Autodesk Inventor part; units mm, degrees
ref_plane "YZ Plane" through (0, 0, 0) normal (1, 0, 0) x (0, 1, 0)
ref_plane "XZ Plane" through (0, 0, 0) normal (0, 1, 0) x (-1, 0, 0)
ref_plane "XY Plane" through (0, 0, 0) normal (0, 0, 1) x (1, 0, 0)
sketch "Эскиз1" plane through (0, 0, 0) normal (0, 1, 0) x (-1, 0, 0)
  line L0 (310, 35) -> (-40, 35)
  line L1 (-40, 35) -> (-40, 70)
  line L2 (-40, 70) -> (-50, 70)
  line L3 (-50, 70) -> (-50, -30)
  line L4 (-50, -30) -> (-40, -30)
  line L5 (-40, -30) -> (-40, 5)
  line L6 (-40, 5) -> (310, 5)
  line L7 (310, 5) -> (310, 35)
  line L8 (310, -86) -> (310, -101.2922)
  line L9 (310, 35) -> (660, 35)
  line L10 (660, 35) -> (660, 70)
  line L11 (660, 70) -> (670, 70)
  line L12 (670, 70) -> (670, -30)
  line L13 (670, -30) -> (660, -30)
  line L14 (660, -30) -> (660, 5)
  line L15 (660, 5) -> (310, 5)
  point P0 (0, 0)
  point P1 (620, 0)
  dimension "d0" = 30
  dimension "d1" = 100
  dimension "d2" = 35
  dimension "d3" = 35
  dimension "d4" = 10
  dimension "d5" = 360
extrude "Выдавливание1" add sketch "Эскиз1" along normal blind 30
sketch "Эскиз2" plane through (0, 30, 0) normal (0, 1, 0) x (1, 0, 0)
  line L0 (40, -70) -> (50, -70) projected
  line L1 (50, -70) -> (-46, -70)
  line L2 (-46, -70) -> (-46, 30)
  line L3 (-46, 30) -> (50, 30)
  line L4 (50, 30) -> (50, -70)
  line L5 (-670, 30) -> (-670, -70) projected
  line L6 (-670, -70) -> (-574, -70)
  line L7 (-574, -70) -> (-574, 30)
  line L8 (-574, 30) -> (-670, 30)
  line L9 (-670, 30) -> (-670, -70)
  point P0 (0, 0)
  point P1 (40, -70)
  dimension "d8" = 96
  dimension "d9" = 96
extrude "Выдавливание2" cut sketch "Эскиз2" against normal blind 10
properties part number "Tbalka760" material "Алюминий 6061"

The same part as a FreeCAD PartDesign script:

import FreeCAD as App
import Part
import Sketcher

V = App.Vector
Q = App.Units.Quantity

doc = App.newDocument("Part")
body = doc.addObject("PartDesign::Body", "Body")

sketch1 = body.newObject("Sketcher::SketchObject", "Sketch")
sketch1.AttachmentSupport = (doc.getObject("XZ_Plane"), [""])
sketch1.MapMode = "FlatFace"
sketch1.addGeometry(Part.LineSegment(V(40, 5, 0), V(-660, 5, 0)), False)
sketch1.addGeometry(Part.LineSegment(V(-660, 5, 0), V(-660, -30, 0)), False)
sketch1.addGeometry(Part.LineSegment(V(-660, -30, 0), V(-670, -30, 0)), False)
sketch1.addGeometry(Part.LineSegment(V(-670, -30, 0), V(-670, 70, 0)), False)
sketch1.addGeometry(Part.LineSegment(V(-670, 70, 0), V(-660, 70, 0)), False)
sketch1.addGeometry(Part.LineSegment(V(-660, 70, 0), V(-660, 35, 0)), False)
sketch1.addGeometry(Part.LineSegment(V(-660, 35, 0), V(40, 35, 0)), False)
sketch1.addGeometry(Part.LineSegment(V(40, 35, 0), V(40, 70, 0)), False)
sketch1.addGeometry(Part.LineSegment(V(40, 70, 0), V(50, 70, 0)), False)
sketch1.addGeometry(Part.LineSegment(V(50, 70, 0), V(50, -30, 0)), False)
sketch1.addGeometry(Part.LineSegment(V(50, -30, 0), V(40, -30, 0)), False)
sketch1.addGeometry(Part.LineSegment(V(40, -30, 0), V(40, 5, 0)), False)
sketch1.addConstraint(Sketcher.Constraint("Coincident", 0, 2, 1, 1))
sketch1.addConstraint(Sketcher.Constraint("Coincident", 1, 2, 2, 1))
sketch1.addConstraint(Sketcher.Constraint("Coincident", 2, 2, 3, 1))
sketch1.addConstraint(Sketcher.Constraint("Coincident", 3, 2, 4, 1))
sketch1.addConstraint(Sketcher.Constraint("Coincident", 4, 2, 5, 1))
sketch1.addConstraint(Sketcher.Constraint("Coincident", 5, 2, 6, 1))
sketch1.addConstraint(Sketcher.Constraint("Coincident", 6, 2, 7, 1))
sketch1.addConstraint(Sketcher.Constraint("Coincident", 7, 2, 8, 1))
sketch1.addConstraint(Sketcher.Constraint("Coincident", 8, 2, 9, 1))
sketch1.addConstraint(Sketcher.Constraint("Coincident", 9, 2, 10, 1))
sketch1.addConstraint(Sketcher.Constraint("Coincident", 10, 2, 11, 1))
sketch1.addConstraint(Sketcher.Constraint("Coincident", 11, 2, 0, 1))
sketch1.addConstraint(Sketcher.Constraint("Horizontal", 0))
sketch1.addConstraint(Sketcher.Constraint("Vertical", 1))
sketch1.addConstraint(Sketcher.Constraint("Horizontal", 2))
sketch1.addConstraint(Sketcher.Constraint("Vertical", 3))
sketch1.addConstraint(Sketcher.Constraint("Horizontal", 4))
sketch1.addConstraint(Sketcher.Constraint("Vertical", 5))
sketch1.addConstraint(Sketcher.Constraint("Horizontal", 6))
sketch1.addConstraint(Sketcher.Constraint("Vertical", 7))
sketch1.addConstraint(Sketcher.Constraint("Horizontal", 8))
sketch1.addConstraint(Sketcher.Constraint("Vertical", 9))
sketch1.addConstraint(Sketcher.Constraint("Horizontal", 10))
sketch1.addConstraint(Sketcher.Constraint("Vertical", 11))
sketch1.addConstraint(Sketcher.Constraint("Horizontal", 4, 2, 7, 2))
sketch1.addConstraint(Sketcher.Constraint("Horizontal", 2, 2, 9, 2))
sketch1.addConstraint(Sketcher.Constraint("Vertical", 1, 2, 4, 2))
sketch1.addConstraint(Sketcher.Constraint("Vertical", 7, 2, 10, 2))
sketch1.addConstraint(Sketcher.Constraint("Equal", 4, 8))
sketch1.addConstraint(Sketcher.Constraint("Equal", 1, 5))
sketch1.addConstraint(Sketcher.Constraint("DistanceX", 2, 2, 2, 1, Q("10 mm")))
sketch1.addConstraint(Sketcher.Constraint("DistanceY", 1, 2, 1, 1, Q("35 mm")))
sketch1.addConstraint(Sketcher.Constraint("DistanceY", 3, 1, 3, 2, Q("100 mm")))
sketch1.addConstraint(Sketcher.Constraint("DistanceY", 1, 2, -1, 1, Q("30 mm")))
sketch1.addConstraint(Sketcher.Constraint("DistanceX", 0, 2, 0, 1, Q("700 mm")))
sketch1.addConstraint(Sketcher.Constraint("DistanceX", 0, 2, -1, 1, Q("660 mm")))
pad1 = body.newObject("PartDesign::Pad", "Pad")
pad1.Profile = sketch1
pad1.Length = 30
pad1.Reversed = True

sketch2 = body.newObject("Sketcher::SketchObject", "Sketch001")
sketch2.AttachmentSupport = (doc.getObject("XZ_Plane"), [""])
sketch2.MapMode = "FlatFace"
sketch2.AttachmentOffset = App.Placement(V(0, 0, -30), App.Rotation())
sketch2.addGeometry(Part.LineSegment(V(-46, 70, 0), V(50, 70, 0)), False)
sketch2.addGeometry(Part.LineSegment(V(50, 70, 0), V(50, -30, 0)), False)
sketch2.addGeometry(Part.LineSegment(V(50, -30, 0), V(-46, -30, 0)), False)
sketch2.addGeometry(Part.LineSegment(V(-46, -30, 0), V(-46, 70, 0)), False)
sketch2.addGeometry(Part.LineSegment(V(-574, -30, 0), V(-670, -30, 0)), False)
sketch2.addGeometry(Part.LineSegment(V(-670, -30, 0), V(-670, 70, 0)), False)
sketch2.addGeometry(Part.LineSegment(V(-670, 70, 0), V(-574, 70, 0)), False)
sketch2.addGeometry(Part.LineSegment(V(-574, 70, 0), V(-574, -30, 0)), False)
sketch2.addConstraint(Sketcher.Constraint("Coincident", 0, 2, 1, 1))
sketch2.addConstraint(Sketcher.Constraint("Coincident", 1, 2, 2, 1))
sketch2.addConstraint(Sketcher.Constraint("Coincident", 2, 2, 3, 1))
sketch2.addConstraint(Sketcher.Constraint("Coincident", 3, 2, 0, 1))
sketch2.addConstraint(Sketcher.Constraint("Coincident", 4, 2, 5, 1))
sketch2.addConstraint(Sketcher.Constraint("Coincident", 5, 2, 6, 1))
sketch2.addConstraint(Sketcher.Constraint("Coincident", 6, 2, 7, 1))
sketch2.addConstraint(Sketcher.Constraint("Coincident", 7, 2, 4, 1))
sketch2.addConstraint(Sketcher.Constraint("Horizontal", 0))
sketch2.addConstraint(Sketcher.Constraint("Vertical", 1))
sketch2.addConstraint(Sketcher.Constraint("Horizontal", 2))
sketch2.addConstraint(Sketcher.Constraint("Vertical", 3))
sketch2.addConstraint(Sketcher.Constraint("Horizontal", 4))
sketch2.addConstraint(Sketcher.Constraint("Vertical", 5))
sketch2.addConstraint(Sketcher.Constraint("Horizontal", 6))
sketch2.addConstraint(Sketcher.Constraint("Vertical", 7))
sketch2.addConstraint(Sketcher.Constraint("Horizontal", 2, 2, 4, 2))
sketch2.addConstraint(Sketcher.Constraint("Horizontal", 3, 2, 5, 2))
sketch2.addConstraint(Sketcher.Constraint("Equal", 2, 4))
sketch2.addConstraint(Sketcher.Constraint("DistanceX", 0, 1, 0, 2, Q("96 mm")))
sketch2.addConstraint(Sketcher.Constraint("DistanceY", 1, 2, 1, 1, Q("100 mm")))
sketch2.addConstraint(Sketcher.Constraint("DistanceX", -1, 1, 0, 2, Q("50 mm")))
sketch2.addConstraint(Sketcher.Constraint("DistanceY", -1, 1, 0, 2, Q("70 mm")))
sketch2.addConstraint(Sketcher.Constraint("DistanceX", 4, 2, -1, 1, Q("670 mm")))
pocket1 = body.newObject("PartDesign::Pocket", "Pocket")
pocket1.Profile = sketch2
pocket1.Length = 10
pocket1.Reversed = True

doc.recompute()
